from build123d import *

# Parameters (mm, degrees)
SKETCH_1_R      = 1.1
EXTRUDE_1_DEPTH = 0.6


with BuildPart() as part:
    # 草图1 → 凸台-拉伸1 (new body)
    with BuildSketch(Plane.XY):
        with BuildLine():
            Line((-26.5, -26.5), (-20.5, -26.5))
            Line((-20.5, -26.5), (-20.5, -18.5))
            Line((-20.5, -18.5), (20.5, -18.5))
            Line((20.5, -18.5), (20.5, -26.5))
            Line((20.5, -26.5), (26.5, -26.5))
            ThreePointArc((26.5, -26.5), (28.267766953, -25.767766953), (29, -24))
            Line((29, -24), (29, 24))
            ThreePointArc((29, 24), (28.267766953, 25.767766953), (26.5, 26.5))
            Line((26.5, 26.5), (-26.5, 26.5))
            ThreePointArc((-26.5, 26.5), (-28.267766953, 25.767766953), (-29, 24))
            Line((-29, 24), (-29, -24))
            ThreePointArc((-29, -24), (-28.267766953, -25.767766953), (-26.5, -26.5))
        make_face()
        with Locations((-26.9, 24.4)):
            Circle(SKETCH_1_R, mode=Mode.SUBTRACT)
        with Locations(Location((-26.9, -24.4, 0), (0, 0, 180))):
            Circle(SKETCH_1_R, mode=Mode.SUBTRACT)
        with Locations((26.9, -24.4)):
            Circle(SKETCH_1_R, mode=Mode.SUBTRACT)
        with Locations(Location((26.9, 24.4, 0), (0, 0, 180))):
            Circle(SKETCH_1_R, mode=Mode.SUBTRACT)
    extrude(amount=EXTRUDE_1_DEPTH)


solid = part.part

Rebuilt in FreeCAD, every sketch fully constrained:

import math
import FreeCAD as App
import Part
import Sketcher
Q = App.Units.Quantity

doc = App.newDocument("Part")
body = doc.addObject("PartDesign::Body", "Body")

# Sketch on XY plane
sketch1 = doc.addObject("Sketcher::SketchObject", "Sketch")
body.addObject(sketch1)
sketch1.AttachmentSupport = (doc.XY_Plane, [""])
sketch1.MapMode = "FlatFace"
sketch1.addGeometry([
    Part.LineSegment(App.Vector(-26.5, -26.5, 0), App.Vector(-20.5, -26.5, 0)),  # 0
    Part.LineSegment(App.Vector(-20.5, -26.5, 0), App.Vector(-20.5, -18.5, 0)),  # 1
    Part.LineSegment(App.Vector(-20.5, -18.5, 0), App.Vector(20.5, -18.5, 0)),  # 2
    Part.LineSegment(App.Vector(20.5, -18.5, 0), App.Vector(20.5, -26.5, 0)),  # 3
    Part.LineSegment(App.Vector(20.5, -26.5, 0), App.Vector(26.5, -26.5, 0)),  # 4
    Part.ArcOfCircle(Part.Circle(App.Vector(26.5, -24, 0), App.Vector(0, 0, 1), 2.5), math.radians(-90), math.radians(0)),  # 5
    Part.LineSegment(App.Vector(29, -24, 0), App.Vector(29, 24, 0)),  # 6
    Part.ArcOfCircle(Part.Circle(App.Vector(26.5, 24, 0), App.Vector(0, 0, 1), 2.5), math.radians(0), math.radians(90)),  # 7
    Part.LineSegment(App.Vector(26.5, 26.5, 0), App.Vector(-26.5, 26.5, 0)),  # 8
    Part.ArcOfCircle(Part.Circle(App.Vector(-26.5, 24, 0), App.Vector(0, 0, 1), 2.5), math.radians(90), math.radians(180)),  # 9
    Part.LineSegment(App.Vector(-29, 24, 0), App.Vector(-29, -24, 0)),  # 10
    Part.ArcOfCircle(Part.Circle(App.Vector(-26.5, -24, 0), App.Vector(0, 0, 1), 2.5), math.radians(180), math.radians(270)),  # 11
    Part.Circle(App.Vector(-26.9, -24.4, 0), App.Vector(0, 0, 1), 1.1),  # 12
    Part.Circle(App.Vector(26.9, -24.4, 0), App.Vector(0, 0, 1), 1.1),  # 13
    Part.Circle(App.Vector(-26.9, 24.4, 0), App.Vector(0, 0, 1), 1.1),  # 14
    Part.Circle(App.Vector(26.9, 24.4, 0), App.Vector(0, 0, 1), 1.1),  # 15
], False)
sketch1.addConstraint([
    Sketcher.Constraint("Coincident", 0, 2, 1, 1),
    Sketcher.Constraint("Coincident", 1, 2, 2, 1),
    Sketcher.Constraint("Coincident", 2, 2, 3, 1),
    Sketcher.Constraint("Coincident", 3, 2, 4, 1),
    Sketcher.Constraint("Tangent", 4, 2, 5, 1),
    Sketcher.Constraint("Tangent", 5, 2, 6, 1),
    Sketcher.Constraint("Tangent", 6, 2, 7, 1),
    Sketcher.Constraint("Tangent", 7, 2, 8, 1),
    Sketcher.Constraint("Tangent", 8, 2, 9, 1),
    Sketcher.Constraint("Tangent", 9, 2, 10, 1),
    Sketcher.Constraint("Tangent", 10, 2, 11, 1),
    Sketcher.Constraint("Tangent", 11, 2, 0, 1),
    Sketcher.Constraint("Horizontal", 0),
    Sketcher.Constraint("Vertical", 1),
    Sketcher.Constraint("Horizontal", 2),
    Sketcher.Constraint("Vertical", 3),
    Sketcher.Constraint("Horizontal", 4),
    Sketcher.Constraint("Vertical", 6),
    Sketcher.Constraint("Horizontal", 8),
    Sketcher.Constraint("Vertical", 10),
    Sketcher.Constraint("Equal", 5, 7),
    Sketcher.Constraint("Equal", 7, 9),
    Sketcher.Constraint("Equal", 9, 11),
    Sketcher.Constraint("Equal", 12, 13),
    Sketcher.Constraint("Equal", 13, 14),
    Sketcher.Constraint("Equal", 14, 15),
    Sketcher.Constraint("Symmetric", 5, 3, 9, 3, -1, 1),
    Sketcher.Constraint("Symmetric", 13, 3, 14, 3, -1, 1),
    Sketcher.Constraint("Symmetric", 12, 3, 15, 3, -1, 1),
    Sketcher.Constraint("Symmetric", 12, 3, 13, 3, -2),
    Sketcher.Constraint("Symmetric", 0, 2, 3, 2, -2),
    Sketcher.Constraint("Diameter", 12, Q("2.2 mm")),
    Sketcher.Constraint("Radius", 5, Q("2.5 mm")),
    Sketcher.Constraint("DistanceX", 0, 1, 0, 2, Q("6 mm")),
    Sketcher.Constraint("DistanceX", 2, 1, 2, 2, Q("41 mm")),
    Sketcher.Constraint("DistanceY", 1, 1, 1, 2, Q("8 mm")),
    Sketcher.Constraint("DistanceY", 6, 1, 6, 2, Q("48 mm")),
    Sketcher.Constraint("DistanceX", 12, 3, -1, 1, Q("26.9 mm")),
    Sketcher.Constraint("DistanceY", 12, 3, -1, 1, Q("24.4 mm")),
])
pad1 = doc.addObject("PartDesign::Pad", "Pad")
body.addObject(pad1)
pad1.Profile = sketch1
pad1.Length = 0.6

doc.recompute()
